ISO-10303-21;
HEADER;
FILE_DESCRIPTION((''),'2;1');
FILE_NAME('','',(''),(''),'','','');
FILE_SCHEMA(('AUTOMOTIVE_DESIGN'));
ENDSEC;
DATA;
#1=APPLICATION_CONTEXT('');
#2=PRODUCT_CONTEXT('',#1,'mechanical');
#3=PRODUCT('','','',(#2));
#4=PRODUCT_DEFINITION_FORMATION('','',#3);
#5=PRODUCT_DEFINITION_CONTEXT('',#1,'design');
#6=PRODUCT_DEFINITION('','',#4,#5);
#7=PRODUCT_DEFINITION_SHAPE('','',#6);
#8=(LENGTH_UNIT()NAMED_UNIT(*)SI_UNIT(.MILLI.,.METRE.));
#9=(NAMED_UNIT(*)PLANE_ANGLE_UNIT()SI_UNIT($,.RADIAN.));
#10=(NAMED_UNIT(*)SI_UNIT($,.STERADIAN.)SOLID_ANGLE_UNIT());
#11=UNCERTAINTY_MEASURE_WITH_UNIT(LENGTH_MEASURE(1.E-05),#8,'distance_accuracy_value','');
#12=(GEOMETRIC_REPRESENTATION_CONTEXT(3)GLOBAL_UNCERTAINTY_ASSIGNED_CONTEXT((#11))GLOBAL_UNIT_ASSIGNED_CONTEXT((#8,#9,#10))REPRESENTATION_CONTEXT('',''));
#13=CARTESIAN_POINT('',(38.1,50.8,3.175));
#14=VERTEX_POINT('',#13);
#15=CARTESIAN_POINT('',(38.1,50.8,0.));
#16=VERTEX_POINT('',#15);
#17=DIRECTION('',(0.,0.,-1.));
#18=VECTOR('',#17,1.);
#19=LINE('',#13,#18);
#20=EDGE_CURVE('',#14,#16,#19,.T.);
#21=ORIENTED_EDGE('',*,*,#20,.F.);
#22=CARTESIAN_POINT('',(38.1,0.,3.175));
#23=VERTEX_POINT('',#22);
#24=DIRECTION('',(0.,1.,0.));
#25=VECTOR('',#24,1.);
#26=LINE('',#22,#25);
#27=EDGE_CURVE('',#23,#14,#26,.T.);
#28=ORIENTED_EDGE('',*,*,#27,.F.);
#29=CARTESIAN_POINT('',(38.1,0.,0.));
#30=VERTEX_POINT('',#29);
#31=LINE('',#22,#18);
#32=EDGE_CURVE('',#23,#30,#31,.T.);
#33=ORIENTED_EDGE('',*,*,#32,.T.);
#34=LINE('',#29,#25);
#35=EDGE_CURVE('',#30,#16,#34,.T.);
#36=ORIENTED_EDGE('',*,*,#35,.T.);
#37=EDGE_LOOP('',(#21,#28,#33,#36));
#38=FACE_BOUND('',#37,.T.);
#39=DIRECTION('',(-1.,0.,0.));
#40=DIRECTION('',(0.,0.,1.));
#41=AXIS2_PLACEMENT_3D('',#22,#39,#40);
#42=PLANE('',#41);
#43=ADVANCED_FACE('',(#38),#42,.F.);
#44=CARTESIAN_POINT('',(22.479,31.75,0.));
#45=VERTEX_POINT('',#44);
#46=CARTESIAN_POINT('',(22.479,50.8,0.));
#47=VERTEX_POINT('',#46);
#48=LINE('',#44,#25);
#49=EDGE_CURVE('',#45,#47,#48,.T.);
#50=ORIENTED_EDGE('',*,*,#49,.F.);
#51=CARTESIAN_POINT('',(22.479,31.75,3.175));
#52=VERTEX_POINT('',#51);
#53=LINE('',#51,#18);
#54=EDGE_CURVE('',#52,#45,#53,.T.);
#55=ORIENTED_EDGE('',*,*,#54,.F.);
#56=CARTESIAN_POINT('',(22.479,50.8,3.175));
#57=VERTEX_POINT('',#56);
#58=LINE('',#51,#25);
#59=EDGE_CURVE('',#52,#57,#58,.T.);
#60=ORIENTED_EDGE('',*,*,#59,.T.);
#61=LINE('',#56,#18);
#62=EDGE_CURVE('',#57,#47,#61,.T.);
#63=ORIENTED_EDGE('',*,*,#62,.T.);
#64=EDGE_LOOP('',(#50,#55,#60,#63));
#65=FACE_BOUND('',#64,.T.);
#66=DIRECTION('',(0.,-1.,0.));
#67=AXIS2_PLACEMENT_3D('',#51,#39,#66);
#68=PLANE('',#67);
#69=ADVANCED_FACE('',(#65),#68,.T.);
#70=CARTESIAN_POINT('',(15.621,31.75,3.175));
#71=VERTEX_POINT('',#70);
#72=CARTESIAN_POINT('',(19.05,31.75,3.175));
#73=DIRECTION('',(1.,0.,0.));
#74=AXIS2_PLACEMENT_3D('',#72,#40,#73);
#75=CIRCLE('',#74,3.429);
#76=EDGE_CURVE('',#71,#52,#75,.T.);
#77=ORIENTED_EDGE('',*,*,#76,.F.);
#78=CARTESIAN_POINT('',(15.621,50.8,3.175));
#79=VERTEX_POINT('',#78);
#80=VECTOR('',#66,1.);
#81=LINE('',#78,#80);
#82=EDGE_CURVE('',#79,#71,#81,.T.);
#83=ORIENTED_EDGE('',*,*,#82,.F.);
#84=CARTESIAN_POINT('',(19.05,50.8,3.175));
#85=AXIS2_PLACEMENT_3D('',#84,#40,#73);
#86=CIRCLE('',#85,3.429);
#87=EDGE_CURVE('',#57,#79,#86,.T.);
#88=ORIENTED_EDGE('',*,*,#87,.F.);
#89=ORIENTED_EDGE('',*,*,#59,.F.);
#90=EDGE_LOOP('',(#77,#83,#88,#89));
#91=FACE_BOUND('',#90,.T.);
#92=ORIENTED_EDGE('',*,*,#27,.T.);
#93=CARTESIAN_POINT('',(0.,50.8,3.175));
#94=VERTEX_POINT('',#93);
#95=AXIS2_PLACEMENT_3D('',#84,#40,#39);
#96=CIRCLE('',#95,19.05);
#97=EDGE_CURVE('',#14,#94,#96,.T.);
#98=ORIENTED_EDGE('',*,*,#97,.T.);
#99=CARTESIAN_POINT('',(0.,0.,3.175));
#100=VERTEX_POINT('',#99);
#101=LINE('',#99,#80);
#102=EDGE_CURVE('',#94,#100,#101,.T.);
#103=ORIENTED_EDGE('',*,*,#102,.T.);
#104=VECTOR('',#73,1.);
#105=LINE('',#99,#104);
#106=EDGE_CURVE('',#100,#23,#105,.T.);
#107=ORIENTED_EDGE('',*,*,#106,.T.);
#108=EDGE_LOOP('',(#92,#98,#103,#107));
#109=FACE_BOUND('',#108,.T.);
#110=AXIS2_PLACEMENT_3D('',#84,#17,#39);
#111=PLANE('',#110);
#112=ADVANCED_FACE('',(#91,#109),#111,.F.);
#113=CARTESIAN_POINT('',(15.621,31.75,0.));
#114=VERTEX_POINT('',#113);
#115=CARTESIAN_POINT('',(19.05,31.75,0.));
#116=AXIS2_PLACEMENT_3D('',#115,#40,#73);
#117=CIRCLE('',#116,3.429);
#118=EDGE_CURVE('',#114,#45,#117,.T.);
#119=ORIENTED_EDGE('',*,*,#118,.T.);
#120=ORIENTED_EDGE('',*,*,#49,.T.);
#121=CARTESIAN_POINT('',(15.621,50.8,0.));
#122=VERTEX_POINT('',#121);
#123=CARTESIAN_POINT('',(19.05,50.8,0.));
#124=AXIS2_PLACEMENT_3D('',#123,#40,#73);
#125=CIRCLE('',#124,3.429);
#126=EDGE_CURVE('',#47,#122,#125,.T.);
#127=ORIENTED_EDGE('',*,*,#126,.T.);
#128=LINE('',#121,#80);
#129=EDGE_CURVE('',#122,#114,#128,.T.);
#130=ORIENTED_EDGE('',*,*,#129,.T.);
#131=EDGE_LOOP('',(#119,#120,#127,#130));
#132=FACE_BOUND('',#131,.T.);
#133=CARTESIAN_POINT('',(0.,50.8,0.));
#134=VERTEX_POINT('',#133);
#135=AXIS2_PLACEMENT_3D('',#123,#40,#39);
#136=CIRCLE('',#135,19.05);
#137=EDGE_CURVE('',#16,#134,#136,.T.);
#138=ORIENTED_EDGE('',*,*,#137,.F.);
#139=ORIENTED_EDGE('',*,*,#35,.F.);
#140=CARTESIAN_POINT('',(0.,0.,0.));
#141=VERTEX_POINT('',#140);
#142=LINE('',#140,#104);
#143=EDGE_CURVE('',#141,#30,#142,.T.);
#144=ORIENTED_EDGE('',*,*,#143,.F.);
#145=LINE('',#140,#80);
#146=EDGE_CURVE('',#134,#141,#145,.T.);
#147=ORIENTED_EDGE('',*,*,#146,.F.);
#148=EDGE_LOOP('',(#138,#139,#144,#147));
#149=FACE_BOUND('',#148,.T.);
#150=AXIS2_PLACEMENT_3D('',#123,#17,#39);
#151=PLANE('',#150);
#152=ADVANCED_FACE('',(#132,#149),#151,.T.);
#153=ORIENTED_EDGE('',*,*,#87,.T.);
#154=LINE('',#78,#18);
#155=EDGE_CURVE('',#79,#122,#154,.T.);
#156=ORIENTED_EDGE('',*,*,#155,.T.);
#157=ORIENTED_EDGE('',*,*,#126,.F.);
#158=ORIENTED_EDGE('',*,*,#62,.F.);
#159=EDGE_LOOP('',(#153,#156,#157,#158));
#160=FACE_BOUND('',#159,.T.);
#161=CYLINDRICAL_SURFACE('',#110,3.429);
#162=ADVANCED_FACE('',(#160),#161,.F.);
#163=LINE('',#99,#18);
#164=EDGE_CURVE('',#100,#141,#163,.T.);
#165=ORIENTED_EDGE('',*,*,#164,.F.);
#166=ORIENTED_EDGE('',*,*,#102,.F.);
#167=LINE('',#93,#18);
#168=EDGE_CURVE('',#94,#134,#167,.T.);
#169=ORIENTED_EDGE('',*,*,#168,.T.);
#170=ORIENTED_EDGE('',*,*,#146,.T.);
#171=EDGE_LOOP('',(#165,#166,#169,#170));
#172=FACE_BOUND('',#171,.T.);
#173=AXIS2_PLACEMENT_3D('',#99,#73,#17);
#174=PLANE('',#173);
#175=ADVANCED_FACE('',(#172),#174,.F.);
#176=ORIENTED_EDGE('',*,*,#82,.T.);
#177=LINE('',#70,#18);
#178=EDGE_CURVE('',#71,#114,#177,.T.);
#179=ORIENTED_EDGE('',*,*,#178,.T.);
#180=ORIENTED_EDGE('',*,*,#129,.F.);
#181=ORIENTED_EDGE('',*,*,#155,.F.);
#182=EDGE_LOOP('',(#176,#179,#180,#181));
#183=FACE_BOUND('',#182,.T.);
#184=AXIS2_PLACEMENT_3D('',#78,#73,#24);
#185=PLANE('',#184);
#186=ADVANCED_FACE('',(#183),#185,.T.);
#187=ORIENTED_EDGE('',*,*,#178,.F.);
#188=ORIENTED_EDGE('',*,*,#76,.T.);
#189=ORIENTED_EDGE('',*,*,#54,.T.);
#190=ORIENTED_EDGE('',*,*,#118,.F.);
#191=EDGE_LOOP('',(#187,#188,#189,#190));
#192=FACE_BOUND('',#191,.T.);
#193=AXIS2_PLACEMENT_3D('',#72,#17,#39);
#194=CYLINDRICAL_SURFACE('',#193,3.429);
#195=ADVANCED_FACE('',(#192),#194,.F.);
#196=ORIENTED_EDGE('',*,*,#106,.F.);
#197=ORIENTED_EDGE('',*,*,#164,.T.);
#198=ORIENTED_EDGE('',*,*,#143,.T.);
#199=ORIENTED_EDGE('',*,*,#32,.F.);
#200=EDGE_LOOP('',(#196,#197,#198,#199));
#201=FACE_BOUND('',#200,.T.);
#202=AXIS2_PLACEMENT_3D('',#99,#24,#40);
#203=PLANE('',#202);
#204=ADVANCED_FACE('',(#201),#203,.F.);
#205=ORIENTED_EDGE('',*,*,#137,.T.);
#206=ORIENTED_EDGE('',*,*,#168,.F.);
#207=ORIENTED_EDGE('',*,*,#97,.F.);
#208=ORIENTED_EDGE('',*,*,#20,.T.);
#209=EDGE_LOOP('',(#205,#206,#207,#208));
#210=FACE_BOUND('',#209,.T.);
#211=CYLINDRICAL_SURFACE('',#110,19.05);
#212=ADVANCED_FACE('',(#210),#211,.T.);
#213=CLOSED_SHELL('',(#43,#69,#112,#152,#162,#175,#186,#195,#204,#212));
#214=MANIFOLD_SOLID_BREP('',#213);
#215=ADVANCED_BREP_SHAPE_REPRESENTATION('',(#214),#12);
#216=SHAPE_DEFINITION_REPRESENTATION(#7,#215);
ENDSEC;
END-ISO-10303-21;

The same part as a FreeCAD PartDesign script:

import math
import FreeCAD as App
import Part
import Sketcher

V = App.Vector
Q = App.Units.Quantity

doc = App.newDocument("Part")
params = doc.addObject("Spreadsheet::Sheet", "Params")
for row, (alias, value) in enumerate([
    ("sketch1_height", "2 in"),
    ("sketch1_radius", "0.75 in"),
    ("sketch1_radius2", "0.135 in"),
    ("sketch1_height2", "0.75 in"),
    ("pad1_length", "0.125 in"),
], start=1):
    params.set(f"A{row}", alias)
    params.set(f"B{row}", "=" + value)
    params.setAlias(f"B{row}", alias)

body = doc.addObject("PartDesign::Body", "Body")

# Sketch on XY plane
sketch1 = doc.addObject("Sketcher::SketchObject", "Sketch")
body.addObject(sketch1)
sketch1.AttachmentSupport = (doc.XY_Plane, [""])
sketch1.MapMode = "FlatFace"
sketch1.addGeometry([
    Part.LineSegment(V(0, 0, 0), V(38.1, 0, 0)),  # 0
    Part.LineSegment(V(38.1, 0, 0), V(38.1, 50.8, 0)),  # 1
    Part.ArcOfCircle(Part.Circle(V(19.05, 50.8, 0), V(0, 0, 1), 19.05), math.radians(0), math.radians(180)),  # 2
    Part.LineSegment(V(0, 50.8, 0), V(0, 0, 0)),  # 3
    Part.LineSegment(V(15.621, 31.75, 0), V(15.621, 50.8, 0)),  # 4
    Part.ArcOfCircle(Part.Circle(V(19.05, 50.8, 0), V(0, 0, 1), 3.429), math.radians(0), math.radians(180)),  # 5
    Part.LineSegment(V(22.479, 50.8, 0), V(22.479, 31.75, 0)),  # 6
    Part.ArcOfCircle(Part.Circle(V(19.05, 31.75, 0), V(0, 0, 1), 3.429), math.radians(180), math.radians(360)),  # 7
], False)
sketch1.addConstraint([
    Sketcher.Constraint("Coincident", 0, 2, 1, 1),
    Sketcher.Constraint("Tangent", 1, 2, 2, 1),
    Sketcher.Constraint("Tangent", 2, 2, 3, 1),
    Sketcher.Constraint("Coincident", 3, 2, 0, 1),
    Sketcher.Constraint("Tangent", 4, 2, 5, 2),
    Sketcher.Constraint("Tangent", 5, 1, 6, 1),
    Sketcher.Constraint("Tangent", 6, 2, 7, 2),
    Sketcher.Constraint("Tangent", 7, 1, 4, 1),
    Sketcher.Constraint("Horizontal", 0),
    Sketcher.Constraint("Vertical", 1),
    Sketcher.Constraint("Vertical", 3),
    Sketcher.Constraint("Vertical", 4),
    Sketcher.Constraint("Vertical", 6),
    Sketcher.Constraint("Coincident", 3, 2, -1, 1),
    Sketcher.Constraint("Coincident", 5, 3, 2, 3),
    Sketcher.Constraint("DistanceY", 1, 1, 1, 2, Q("2 in")),
    Sketcher.Constraint("Radius", 2, Q("0.75 in")),
    Sketcher.Constraint("Radius", 5, Q("0.135 in")),
    Sketcher.Constraint("DistanceY", 4, 1, 4, 2, Q("0.75 in")),
])
sketch1.setExpression("Constraints[15]", "Params.sketch1_height")
sketch1.setExpression("Constraints[16]", "Params.sketch1_radius")
sketch1.setExpression("Constraints[17]", "Params.sketch1_radius2")
sketch1.setExpression("Constraints[18]", "Params.sketch1_height2")
pad1 = doc.addObject("PartDesign::Pad", "Pad")
body.addObject(pad1)
pad1.Profile = sketch1
pad1.setExpression("Length", "Params.pad1_length")

doc.recompute()
